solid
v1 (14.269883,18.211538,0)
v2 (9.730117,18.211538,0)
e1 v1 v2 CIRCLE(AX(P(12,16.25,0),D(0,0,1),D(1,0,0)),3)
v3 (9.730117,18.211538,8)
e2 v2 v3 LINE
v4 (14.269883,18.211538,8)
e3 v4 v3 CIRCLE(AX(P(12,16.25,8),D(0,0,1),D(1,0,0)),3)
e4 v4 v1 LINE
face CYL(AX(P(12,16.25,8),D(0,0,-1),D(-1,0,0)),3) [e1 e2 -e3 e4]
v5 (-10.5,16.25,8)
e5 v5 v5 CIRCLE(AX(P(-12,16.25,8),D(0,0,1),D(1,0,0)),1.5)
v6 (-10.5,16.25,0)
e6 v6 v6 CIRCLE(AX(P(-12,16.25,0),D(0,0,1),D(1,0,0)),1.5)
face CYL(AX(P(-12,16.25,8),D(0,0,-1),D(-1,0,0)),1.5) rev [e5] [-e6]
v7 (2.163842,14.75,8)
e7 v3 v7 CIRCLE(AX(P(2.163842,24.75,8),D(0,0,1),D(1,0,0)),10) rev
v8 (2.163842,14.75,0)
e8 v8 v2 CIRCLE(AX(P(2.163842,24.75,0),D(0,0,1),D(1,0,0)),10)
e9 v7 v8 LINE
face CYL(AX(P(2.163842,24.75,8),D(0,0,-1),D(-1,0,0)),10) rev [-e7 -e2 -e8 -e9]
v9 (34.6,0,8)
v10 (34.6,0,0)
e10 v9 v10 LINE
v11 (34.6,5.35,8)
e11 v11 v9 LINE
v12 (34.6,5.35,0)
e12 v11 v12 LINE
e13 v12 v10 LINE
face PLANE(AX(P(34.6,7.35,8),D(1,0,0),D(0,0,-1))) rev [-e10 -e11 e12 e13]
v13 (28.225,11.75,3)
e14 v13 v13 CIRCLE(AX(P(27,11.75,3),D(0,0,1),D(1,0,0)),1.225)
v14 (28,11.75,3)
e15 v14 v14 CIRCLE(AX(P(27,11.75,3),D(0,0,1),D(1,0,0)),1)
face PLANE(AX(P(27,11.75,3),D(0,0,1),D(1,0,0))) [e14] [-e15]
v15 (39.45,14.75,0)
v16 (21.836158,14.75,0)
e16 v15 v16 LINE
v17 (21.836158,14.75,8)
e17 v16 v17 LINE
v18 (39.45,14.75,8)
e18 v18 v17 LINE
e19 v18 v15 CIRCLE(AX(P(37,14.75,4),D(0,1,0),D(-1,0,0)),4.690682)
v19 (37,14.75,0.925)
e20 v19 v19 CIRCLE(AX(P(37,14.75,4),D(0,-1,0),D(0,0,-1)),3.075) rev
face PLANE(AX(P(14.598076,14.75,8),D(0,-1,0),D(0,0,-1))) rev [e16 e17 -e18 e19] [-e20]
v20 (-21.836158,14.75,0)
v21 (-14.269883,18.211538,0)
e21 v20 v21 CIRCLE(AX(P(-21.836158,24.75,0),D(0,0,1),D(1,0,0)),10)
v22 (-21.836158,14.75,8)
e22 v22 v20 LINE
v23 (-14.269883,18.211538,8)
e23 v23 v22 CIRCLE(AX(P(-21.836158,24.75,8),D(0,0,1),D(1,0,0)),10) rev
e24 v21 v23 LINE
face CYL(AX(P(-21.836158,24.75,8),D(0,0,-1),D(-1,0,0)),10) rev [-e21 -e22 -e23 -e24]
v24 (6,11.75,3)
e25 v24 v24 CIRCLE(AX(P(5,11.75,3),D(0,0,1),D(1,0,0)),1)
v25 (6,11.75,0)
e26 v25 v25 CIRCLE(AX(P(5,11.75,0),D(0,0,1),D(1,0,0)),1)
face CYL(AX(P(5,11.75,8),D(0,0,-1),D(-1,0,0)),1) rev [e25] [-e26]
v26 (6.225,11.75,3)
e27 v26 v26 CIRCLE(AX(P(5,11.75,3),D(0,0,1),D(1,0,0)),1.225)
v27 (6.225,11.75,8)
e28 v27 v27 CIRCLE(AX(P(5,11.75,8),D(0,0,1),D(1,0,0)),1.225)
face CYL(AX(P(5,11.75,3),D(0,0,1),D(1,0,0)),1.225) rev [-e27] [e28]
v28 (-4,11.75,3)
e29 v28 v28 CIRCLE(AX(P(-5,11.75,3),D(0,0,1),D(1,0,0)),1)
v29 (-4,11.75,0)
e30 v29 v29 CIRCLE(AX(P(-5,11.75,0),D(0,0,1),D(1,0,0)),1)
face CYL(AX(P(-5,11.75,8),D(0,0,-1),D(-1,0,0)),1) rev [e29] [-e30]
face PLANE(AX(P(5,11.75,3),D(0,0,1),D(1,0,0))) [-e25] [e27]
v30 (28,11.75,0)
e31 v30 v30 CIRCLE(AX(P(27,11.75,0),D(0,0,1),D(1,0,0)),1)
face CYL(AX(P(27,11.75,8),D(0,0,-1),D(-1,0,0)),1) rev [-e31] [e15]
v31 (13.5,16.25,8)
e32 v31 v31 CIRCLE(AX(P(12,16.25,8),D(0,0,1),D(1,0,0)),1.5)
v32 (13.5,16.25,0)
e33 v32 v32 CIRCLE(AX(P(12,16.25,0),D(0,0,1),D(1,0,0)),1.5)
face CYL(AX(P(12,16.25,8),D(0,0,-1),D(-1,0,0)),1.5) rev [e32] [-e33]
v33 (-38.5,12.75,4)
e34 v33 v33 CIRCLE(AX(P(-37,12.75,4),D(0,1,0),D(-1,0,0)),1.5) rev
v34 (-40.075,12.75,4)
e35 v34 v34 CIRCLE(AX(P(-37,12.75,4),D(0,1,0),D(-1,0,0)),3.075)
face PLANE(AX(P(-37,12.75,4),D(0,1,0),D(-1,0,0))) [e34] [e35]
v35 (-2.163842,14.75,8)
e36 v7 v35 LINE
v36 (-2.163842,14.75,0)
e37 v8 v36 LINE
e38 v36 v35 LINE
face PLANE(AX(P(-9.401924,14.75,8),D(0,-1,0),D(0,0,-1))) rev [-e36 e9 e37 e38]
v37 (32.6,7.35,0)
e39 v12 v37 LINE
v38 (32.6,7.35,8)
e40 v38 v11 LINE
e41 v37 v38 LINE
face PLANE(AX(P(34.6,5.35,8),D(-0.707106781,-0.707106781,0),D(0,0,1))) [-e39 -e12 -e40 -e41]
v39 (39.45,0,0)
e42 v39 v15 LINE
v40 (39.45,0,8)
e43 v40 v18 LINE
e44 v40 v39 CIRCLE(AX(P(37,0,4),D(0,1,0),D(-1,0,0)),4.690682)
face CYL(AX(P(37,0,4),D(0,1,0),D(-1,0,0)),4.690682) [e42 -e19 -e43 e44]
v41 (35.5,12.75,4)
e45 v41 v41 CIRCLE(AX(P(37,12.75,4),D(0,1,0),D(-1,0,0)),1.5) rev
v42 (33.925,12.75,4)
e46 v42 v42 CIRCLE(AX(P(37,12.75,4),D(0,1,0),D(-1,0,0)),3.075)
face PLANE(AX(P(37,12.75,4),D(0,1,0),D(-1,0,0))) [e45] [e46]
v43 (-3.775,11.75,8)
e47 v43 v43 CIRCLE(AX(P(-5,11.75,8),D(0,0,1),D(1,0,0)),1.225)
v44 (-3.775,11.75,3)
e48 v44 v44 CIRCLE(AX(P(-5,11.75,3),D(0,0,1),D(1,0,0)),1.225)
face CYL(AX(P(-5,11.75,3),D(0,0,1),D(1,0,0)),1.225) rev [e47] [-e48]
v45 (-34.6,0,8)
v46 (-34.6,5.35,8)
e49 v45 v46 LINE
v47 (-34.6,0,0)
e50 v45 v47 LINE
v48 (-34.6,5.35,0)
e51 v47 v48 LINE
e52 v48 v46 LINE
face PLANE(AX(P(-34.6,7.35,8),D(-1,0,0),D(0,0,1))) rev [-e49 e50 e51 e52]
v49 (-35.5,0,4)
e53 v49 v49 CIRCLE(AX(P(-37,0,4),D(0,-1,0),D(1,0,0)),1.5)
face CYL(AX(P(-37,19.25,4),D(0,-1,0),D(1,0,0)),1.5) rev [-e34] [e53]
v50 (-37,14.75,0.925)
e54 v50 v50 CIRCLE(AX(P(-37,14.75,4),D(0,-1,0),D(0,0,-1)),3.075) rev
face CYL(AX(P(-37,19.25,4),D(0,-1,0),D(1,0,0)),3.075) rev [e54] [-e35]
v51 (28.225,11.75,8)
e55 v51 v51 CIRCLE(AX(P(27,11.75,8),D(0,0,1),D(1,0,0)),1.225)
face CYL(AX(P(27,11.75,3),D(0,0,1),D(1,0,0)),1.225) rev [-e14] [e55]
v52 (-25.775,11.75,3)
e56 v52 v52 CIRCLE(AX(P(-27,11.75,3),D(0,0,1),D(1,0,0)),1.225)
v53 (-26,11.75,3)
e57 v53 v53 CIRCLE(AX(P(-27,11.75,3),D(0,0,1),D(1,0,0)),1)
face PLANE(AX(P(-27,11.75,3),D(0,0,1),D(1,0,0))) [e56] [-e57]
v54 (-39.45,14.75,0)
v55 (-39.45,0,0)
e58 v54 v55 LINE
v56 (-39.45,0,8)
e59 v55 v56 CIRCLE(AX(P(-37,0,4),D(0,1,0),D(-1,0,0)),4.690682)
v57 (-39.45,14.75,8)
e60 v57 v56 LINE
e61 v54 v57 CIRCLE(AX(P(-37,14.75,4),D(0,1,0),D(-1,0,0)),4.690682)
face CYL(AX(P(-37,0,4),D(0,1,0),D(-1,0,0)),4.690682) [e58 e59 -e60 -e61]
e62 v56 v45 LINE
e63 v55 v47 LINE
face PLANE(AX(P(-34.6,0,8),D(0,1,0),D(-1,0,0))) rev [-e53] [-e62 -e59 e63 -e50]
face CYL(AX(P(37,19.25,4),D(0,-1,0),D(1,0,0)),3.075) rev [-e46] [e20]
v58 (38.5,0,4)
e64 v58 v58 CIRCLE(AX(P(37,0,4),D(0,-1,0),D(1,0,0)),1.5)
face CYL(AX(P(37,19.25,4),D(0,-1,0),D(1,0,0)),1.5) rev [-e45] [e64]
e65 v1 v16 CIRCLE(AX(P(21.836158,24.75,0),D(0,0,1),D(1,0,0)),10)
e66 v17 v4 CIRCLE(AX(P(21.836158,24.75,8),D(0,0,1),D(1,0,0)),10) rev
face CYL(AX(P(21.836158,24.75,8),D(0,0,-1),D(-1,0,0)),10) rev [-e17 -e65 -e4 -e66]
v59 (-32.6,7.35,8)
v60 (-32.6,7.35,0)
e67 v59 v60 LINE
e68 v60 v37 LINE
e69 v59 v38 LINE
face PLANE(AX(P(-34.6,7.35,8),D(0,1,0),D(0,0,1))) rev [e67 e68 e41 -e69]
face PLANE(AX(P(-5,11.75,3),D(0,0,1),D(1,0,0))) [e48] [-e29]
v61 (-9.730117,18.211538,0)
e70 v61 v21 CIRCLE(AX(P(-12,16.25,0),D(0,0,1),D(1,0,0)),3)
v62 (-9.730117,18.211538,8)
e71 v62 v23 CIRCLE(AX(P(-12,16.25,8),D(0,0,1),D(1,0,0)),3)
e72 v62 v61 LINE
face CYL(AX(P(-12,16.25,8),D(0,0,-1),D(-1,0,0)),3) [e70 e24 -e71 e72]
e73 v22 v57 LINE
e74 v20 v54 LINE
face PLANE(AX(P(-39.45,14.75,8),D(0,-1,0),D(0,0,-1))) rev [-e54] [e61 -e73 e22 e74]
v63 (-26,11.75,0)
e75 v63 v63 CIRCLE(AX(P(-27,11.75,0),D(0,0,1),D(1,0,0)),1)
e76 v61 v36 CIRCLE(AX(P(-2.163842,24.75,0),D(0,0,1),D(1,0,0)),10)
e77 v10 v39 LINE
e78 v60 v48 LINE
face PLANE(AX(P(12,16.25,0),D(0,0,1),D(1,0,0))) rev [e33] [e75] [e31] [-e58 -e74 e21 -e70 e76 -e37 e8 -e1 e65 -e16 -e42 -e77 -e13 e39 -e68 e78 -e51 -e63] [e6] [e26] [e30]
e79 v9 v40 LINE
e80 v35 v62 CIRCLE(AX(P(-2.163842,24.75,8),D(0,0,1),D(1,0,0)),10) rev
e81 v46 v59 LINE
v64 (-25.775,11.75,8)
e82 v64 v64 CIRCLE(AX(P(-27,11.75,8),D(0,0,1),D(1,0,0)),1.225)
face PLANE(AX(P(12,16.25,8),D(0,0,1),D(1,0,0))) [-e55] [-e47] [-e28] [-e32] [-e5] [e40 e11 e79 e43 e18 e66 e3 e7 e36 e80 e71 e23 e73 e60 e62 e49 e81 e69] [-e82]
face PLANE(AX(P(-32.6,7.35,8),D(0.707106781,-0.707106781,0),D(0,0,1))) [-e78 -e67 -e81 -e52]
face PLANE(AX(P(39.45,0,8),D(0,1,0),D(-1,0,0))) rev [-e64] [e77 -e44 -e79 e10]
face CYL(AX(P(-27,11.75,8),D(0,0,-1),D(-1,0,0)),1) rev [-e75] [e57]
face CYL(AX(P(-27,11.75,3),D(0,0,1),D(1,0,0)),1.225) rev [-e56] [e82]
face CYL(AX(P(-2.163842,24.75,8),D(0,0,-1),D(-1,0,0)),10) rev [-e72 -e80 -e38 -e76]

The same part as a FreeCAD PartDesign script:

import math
import FreeCAD as App
import Part
import Sketcher
Q = App.Units.Quantity


def edges_at(feature, points):
    """Names of the edges that pass closest to the given points."""
    edges = feature.Shape.Edges
    near = lambda p: min(range(len(edges)), key=lambda i: edges[i].distToShape(Part.Vertex(*p))[0])
    return sorted({f"Edge{near(p) + 1}" for p in points})

doc = App.newDocument("Part")
body = doc.addObject("PartDesign::Body", "Body")

# Sketch on XY plane
sketch1 = doc.addObject("Sketcher::SketchObject", "Sketch")
body.addObject(sketch1)
sketch1.AttachmentSupport = (doc.XY_Plane, [""])
sketch1.MapMode = "FlatFace"
sketch1.addGeometry([
    Part.LineSegment(App.Vector(34.6, 7.3, 0), App.Vector(34.6, 0, 0)),  # 0
    Part.LineSegment(App.Vector(34.6, 0, 0), App.Vector(39.5, 0, 0)),  # 1
    Part.LineSegment(App.Vector(39.5, 0, 0), App.Vector(39.5, 14.8, 0)),  # 2
    Part.LineSegment(App.Vector(39.5, 14.8, 0), App.Vector(14.6, 14.8, 0)),  # 3
    Part.ArcOfCircle(Part.Circle(App.Vector(12, 16.2, 0), App.Vector(0, 0, 1), 3), math.radians(-30), math.radians(210)),  # 4
    Part.LineSegment(App.Vector(9.4, 14.8, 0), App.Vector(-9.4, 14.8, 0)),  # 5
    Part.ArcOfCircle(Part.Circle(App.Vector(-12, 16.2, 0), App.Vector(0, 0, 1), 3), math.radians(-30), math.radians(210)),  # 6
    Part.LineSegment(App.Vector(-14.6, 14.8, 0), App.Vector(-39.5, 14.8, 0)),  # 7
    Part.LineSegment(App.Vector(-39.5, 14.8, 0), App.Vector(-39.5, 0, 0)),  # 8
    Part.LineSegment(App.Vector(-39.5, 0, 0), App.Vector(-34.6, 0, 0)),  # 9
    Part.LineSegment(App.Vector(-34.6, 0, 0), App.Vector(-34.6, 7.3, 0)),  # 10
    Part.LineSegment(App.Vector(-34.6, 7.3, 0), App.Vector(34.6, 7.3, 0)),  # 11
    Part.Circle(App.Vector(-27, 11.8, 0), App.Vector(0, 0, 1), 1),  # 12
    Part.Circle(App.Vector(-5, 11.8, 0), App.Vector(0, 0, 1), 1),  # 13
    Part.Circle(App.Vector(5, 11.8, 0), App.Vector(0, 0, 1), 1),  # 14
    Part.Circle(App.Vector(27, 11.8, 0), App.Vector(0, 0, 1), 1),  # 15
    Part.Circle(App.Vector(-12, 16.2, 0), App.Vector(0, 0, 1), 1.5),  # 16
    Part.Circle(App.Vector(12, 16.2, 0), App.Vector(0, 0, 1), 1.5),  # 17
], False)
sketch1.addConstraint([
    Sketcher.Constraint("Coincident", 0, 2, 1, 1),
    Sketcher.Constraint("Coincident", 1, 2, 2, 1),
    Sketcher.Constraint("Coincident", 2, 2, 3, 1),
    Sketcher.Constraint("Coincident", 3, 2, 4, 1),
    Sketcher.Constraint("Coincident", 4, 2, 5, 1),
    Sketcher.Constraint("Coincident", 5, 2, 6, 1),
    Sketcher.Constraint("Coincident", 6, 2, 7, 1),
    Sketcher.Constraint("Coincident", 7, 2, 8, 1),
    Sketcher.Constraint("Coincident", 8, 2, 9, 1),
    Sketcher.Constraint("Coincident", 9, 2, 10, 1),
    Sketcher.Constraint("Coincident", 10, 2, 11, 1),
    Sketcher.Constraint("Coincident", 11, 2, 0, 1),
    Sketcher.Constraint("Vertical", 0),
    Sketcher.Constraint("Horizontal", 1),
    Sketcher.Constraint("Vertical", 2),
    Sketcher.Constraint("Horizontal", 3),
    Sketcher.Constraint("Horizontal", 5),
    Sketcher.Constraint("Horizontal", 7),
    Sketcher.Constraint("Vertical", 8),
    Sketcher.Constraint("Horizontal", 9),
    Sketcher.Constraint("Vertical", 10),
    Sketcher.Constraint("Horizontal", 11),
    Sketcher.Constraint("Coincident", 16, 3, 6, 3),
    Sketcher.Constraint("Coincident", 17, 3, 4, 3),
    Sketcher.Constraint("Equal", 4, 6),
    Sketcher.Constraint("Equal", 12, 13),
    Sketcher.Constraint("Equal", 13, 14),
    Sketcher.Constraint("Equal", 14, 15),
    Sketcher.Constraint("Equal", 16, 17),
    Sketcher.Constraint("Symmetric", 1, 2, 8, 2, -1, 1),
    Sketcher.Constraint("Symmetric", 4, 3, 6, 3, -2),
    Sketcher.Constraint("Symmetric", 13, 3, 14, 3, -2),
    Sketcher.Constraint("Symmetric", 12, 3, 15, 3, -2),
    Sketcher.Constraint("Symmetric", 0, 2, 9, 2, -2),
    Sketcher.Constraint("Horizontal", 12, 3, 13, 3),
    Sketcher.Constraint("Horizontal", 3, 2, 4, 2),
    Sketcher.Constraint("Horizontal", 5, 2, 6, 2),
    Sketcher.Constraint("Diameter", 12, Q("2 mm")),
    Sketcher.Constraint("Diameter", 16, Q("3 mm")),
    Sketcher.Constraint("Radius", 4, Q("3 mm")),
    Sketcher.Constraint("DistanceX", 11, 1, 11, 2, Q("69.2 mm")),
    Sketcher.Constraint("DistanceX", -1, 1, 4, 3, Q("12 mm")),
    Sketcher.Constraint("DistanceX", 12, 3, -1, 1, Q("27 mm")),
    Sketcher.Constraint("DistanceX", 13, 3, -1, 1, Q("5 mm")),
    Sketcher.Constraint("DistanceY", 15, 3, 2, 2, Q("3 mm")),
    Sketcher.Constraint("DistanceX", 1, 1, 1, 2, Q("4.85 mm")),
    Sketcher.Constraint("DistanceY", 0, 2, 0, 1, Q("7.35 mm")),
    Sketcher.Constraint("DistanceY", 2, 1, 2, 2, Q("14.75 mm")),
    Sketcher.Constraint("DistanceY", 12, 3, 6, 3, Q("4.5 mm")),
])
pad1 = doc.addObject("PartDesign::Pad", "Pad")
body.addObject(pad1)
pad1.Profile = sketch1
pad1.Length = 8

# Sketch on XZ plane
sketch2 = doc.addObject("Sketcher::SketchObject", "Sketch001")
body.addObject(sketch2)
sketch2.AttachmentSupport = (doc.XZ_Plane, [""])
sketch2.MapMode = "FlatFace"
sketch2.addGeometry([
    Part.Circle(App.Vector(-37, 4, 0), App.Vector(0, 0, 1), 1.5),
    Part.Circle(App.Vector(37, 4, 0), App.Vector(0, 0, 1), 1.5),
], False)
sketch2.addConstraint([
    Sketcher.Constraint("Equal", 0, 1),
    Sketcher.Constraint("Symmetric", 0, 3, 1, 3, -2),
    Sketcher.Constraint("Diameter", 0, Q("3 mm")),
    Sketcher.Constraint("DistanceX", 0, 3, -1, 1, Q("37 mm")),
    Sketcher.Constraint("DistanceY", -1, 1, 0, 3, Q("4 mm")),
])
pocket1 = doc.addObject("PartDesign::Pocket", "Pocket")
body.addObject(pocket1)
pocket1.Profile = sketch2
pocket1.Type = "ThroughAll"

# Sketch on XZ plane
sketch3 = doc.addObject("Sketcher::SketchObject", "Sketch002")
body.addObject(sketch3)
sketch3.AttachmentSupport = (doc.XZ_Plane, [""])
sketch3.MapMode = "FlatFace"
sketch3.AttachmentOffset = App.Placement(App.Vector(0, 0, -14.75), App.Rotation())
sketch3.addGeometry([
    Part.LineSegment(App.Vector(39.5, 0, 0), App.Vector(39.5, 8, 0)),
    Part.ArcOfCircle(Part.Circle(App.Vector(37, 4, 0), App.Vector(0, 0, 1), 4.7), math.radians(-59), math.radians(59)),
    Part.LineSegment(App.Vector(-39.5, 8, 0), App.Vector(-39.5, 0, 0)),
    Part.ArcOfCircle(Part.Circle(App.Vector(-37, 4, 0), App.Vector(0, 0, 1), 4.7), math.radians(121), math.radians(239)),
], False)
sketch3.addConstraint([
    Sketcher.Constraint("Coincident", 0, 1, 1, 1),
    Sketcher.Constraint("Coincident", 1, 2, 0, 2),
    Sketcher.Constraint("Coincident", 2, 1, 3, 1),
    Sketcher.Constraint("Coincident", 3, 2, 2, 2),
    Sketcher.Constraint("Vertical", 0),
    Sketcher.Constraint("Vertical", 2),
    Sketcher.Constraint("Equal", 1, 3),
    Sketcher.Constraint("Symmetric", 0, 1, 3, 2, -1, 1),
    Sketcher.Constraint("Symmetric", 1, 3, 3, 3, -2),
    Sketcher.Constraint("DistanceY", 0, 1, 0, 2, Q("8 mm")),
    Sketcher.Constraint("DistanceX", -1, 1, 1, 3, Q("37 mm")),
    Sketcher.Constraint("DistanceX", 2, 1, 1, 2, Q("78.9 mm")),
])
pad2 = doc.addObject("PartDesign::Pad", "Pad001")
body.addObject(pad2)
pad2.Profile = sketch3
pad2.Length = 14.75

# Sketch on XZ plane
sketch4 = doc.addObject("Sketcher::SketchObject", "Sketch003")
body.addObject(sketch4)
sketch4.AttachmentSupport = (doc.XZ_Plane, [""])
sketch4.MapMode = "FlatFace"
sketch4.AttachmentOffset = App.Placement(App.Vector(0, 0, -14.75), App.Rotation())
sketch4.addGeometry([
    Part.Circle(App.Vector(37, 4, 0), App.Vector(0, 0, 1), 3.1),
    Part.Circle(App.Vector(-37, 4, 0), App.Vector(0, 0, 1), 3.1),
], False)
sketch4.addConstraint([
    Sketcher.Constraint("Equal", 0, 1),
    Sketcher.Constraint("Symmetric", 0, 3, 1, 3, -2),
    Sketcher.Constraint("Diameter", 0, Q("6.15 mm")),
    Sketcher.Constraint("DistanceX", -1, 1, 0, 3, Q("37 mm")),
    Sketcher.Constraint("DistanceY", -1, 1, 0, 3, Q("4 mm")),
])
pocket2 = doc.addObject("PartDesign::Pocket", "Pocket001")
body.addObject(pocket2)
pocket2.Profile = sketch4
pocket2.Type = "TwoLengths"
pocket2.Length = 5.5
pocket2.Length2 = 2
doc.recompute()

chamfer = doc.addObject("PartDesign::Chamfer", "Chamfer")
body.addObject(chamfer)
chamfer.Base = (pocket2, edges_at(pocket2, [(-34.6, 7.35, 4), (34.6, 7.35, 4)]))
chamfer.Size = 2
doc.recompute()

fillet = doc.addObject("PartDesign::Fillet", "Fillet")
body.addObject(fillet)
fillet.Base = (chamfer, edges_at(chamfer, [
    (-14.598, 14.75, 4),
    (-9.402, 14.75, 4),
    (9.402, 14.75, 4),
    (14.598, 14.75, 4),
]))
fillet.Radius = 10

# Sketch on XY plane
sketch5 = doc.addObject("Sketcher::SketchObject", "Sketch004")
body.addObject(sketch5)
sketch5.AttachmentSupport = (doc.XY_Plane, [""])
sketch5.MapMode = "FlatFace"
sketch5.AttachmentOffset = App.Placement(App.Vector(0, 0, 8), App.Rotation())
sketch5.addGeometry([
    Part.Circle(App.Vector(-27, 11.8, 0), App.Vector(0, 0, 1), 1.2),
    Part.Circle(App.Vector(-5, 11.8, 0), App.Vector(0, 0, 1), 1.2),
    Part.Circle(App.Vector(5, 11.8, 0), App.Vector(0, 0, 1), 1.2),
    Part.Circle(App.Vector(27, 11.8, 0), App.Vector(0, 0, 1), 1.2),
], False)
sketch5.addConstraint([
    Sketcher.Constraint("Equal", 0, 1),
    Sketcher.Constraint("Equal", 1, 2),
    Sketcher.Constraint("Equal", 2, 3),
    Sketcher.Constraint("Symmetric", 1, 3, 2, 3, -2),
    Sketcher.Constraint("Symmetric", 0, 3, 3, 3, -2),
    Sketcher.Constraint("Horizontal", 0, 3, 1, 3),
    Sketcher.Constraint("Diameter", 0, Q("2.45 mm")),
    Sketcher.Constraint("DistanceX", 0, 3, -1, 1, Q("27 mm")),
    Sketcher.Constraint("DistanceX", 1, 3, -1, 1, Q("5 mm")),
    Sketcher.Constraint("DistanceY", -1, 1, 0, 3, Q("11.75 mm")),
])
pocket3 = doc.addObject("PartDesign::Pocket", "Pocket002")
body.addObject(pocket3)
pocket3.Profile = sketch5
pocket3.Length = 5

doc.recompute()
